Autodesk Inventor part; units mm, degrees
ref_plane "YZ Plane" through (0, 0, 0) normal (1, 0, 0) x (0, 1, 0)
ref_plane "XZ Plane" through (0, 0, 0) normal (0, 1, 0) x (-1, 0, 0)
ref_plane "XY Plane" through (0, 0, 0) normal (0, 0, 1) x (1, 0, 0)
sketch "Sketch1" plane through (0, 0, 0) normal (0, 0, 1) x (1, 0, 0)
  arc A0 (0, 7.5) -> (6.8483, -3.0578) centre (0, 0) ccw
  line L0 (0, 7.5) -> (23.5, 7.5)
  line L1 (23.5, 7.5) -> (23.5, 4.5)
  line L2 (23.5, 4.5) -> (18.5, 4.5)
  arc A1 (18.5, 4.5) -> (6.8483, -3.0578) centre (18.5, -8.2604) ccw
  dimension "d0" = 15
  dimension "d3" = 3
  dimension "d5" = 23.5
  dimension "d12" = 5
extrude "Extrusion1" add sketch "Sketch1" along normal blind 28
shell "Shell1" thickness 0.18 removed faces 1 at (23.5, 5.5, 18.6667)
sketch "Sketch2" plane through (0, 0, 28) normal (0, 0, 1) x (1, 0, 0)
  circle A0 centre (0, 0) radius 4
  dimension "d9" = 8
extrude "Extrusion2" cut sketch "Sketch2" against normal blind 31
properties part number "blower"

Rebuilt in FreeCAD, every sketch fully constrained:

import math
import FreeCAD as App
import Part
import Sketcher
Q = App.Units.Quantity


def faces_at(feature, points):
    """Names of the faces that lie closest to the given points."""
    faces = feature.Shape.Faces
    near = lambda p: min(range(len(faces)), key=lambda i: faces[i].distToShape(Part.Vertex(*p))[0])
    return sorted({f"Face{near(p) + 1}" for p in points})

doc = App.newDocument("Part")
body = doc.addObject("PartDesign::Body", "Body")

# Sketch on XY plane
sketch1 = body.newObject("Sketcher::SketchObject", "Sketch")
sketch1.AttachmentSupport = (doc.getObject("XY_Plane"), [""])
sketch1.MapMode = "FlatFace"
sketch1.addGeometry(Part.LineSegment(App.Vector(23.5, 7.5, 0), App.Vector(0, 7.5, 0)), False)
sketch1.addGeometry(Part.ArcOfCircle(Part.Circle(App.Vector(0, 0, 0), App.Vector(0, 0, 1), 7.5), math.radians(90), math.radians(336)), False)
sketch1.addGeometry(Part.ArcOfCircle(Part.Circle(App.Vector(18.5, -8.3, 0), App.Vector(0, 0, 1), 12.8), math.radians(90), math.radians(156)), False)
sketch1.addGeometry(Part.LineSegment(App.Vector(18.5, 4.5, 0), App.Vector(23.5, 4.5, 0)), False)
sketch1.addGeometry(Part.LineSegment(App.Vector(23.5, 4.5, 0), App.Vector(23.5, 7.5, 0)), False)
sketch1.addConstraint(Sketcher.Constraint("Tangent", 0, 2, 1, 1))
sketch1.addConstraint(Sketcher.Constraint("Tangent", 1, 2, 2, 2))
sketch1.addConstraint(Sketcher.Constraint("Tangent", 2, 1, 3, 1))
sketch1.addConstraint(Sketcher.Constraint("Coincident", 3, 2, 4, 1))
sketch1.addConstraint(Sketcher.Constraint("Coincident", 4, 2, 0, 1))
sketch1.addConstraint(Sketcher.Constraint("Horizontal", 0))
sketch1.addConstraint(Sketcher.Constraint("Horizontal", 3))
sketch1.addConstraint(Sketcher.Constraint("Vertical", 4))
sketch1.addConstraint(Sketcher.Constraint("Coincident", 1, 3, -1, 1))
sketch1.addConstraint(Sketcher.Constraint("Radius", 1, Q("7.5 mm")))
sketch1.addConstraint(Sketcher.Constraint("DistanceX", 3, 1, 3, 2, Q("5 mm")))
sketch1.addConstraint(Sketcher.Constraint("DistanceY", 4, 1, 4, 2, Q("3 mm")))
sketch1.addConstraint(Sketcher.Constraint("DistanceX", 0, 2, 0, 1, Q("23.5 mm")))
pad1 = body.newObject("PartDesign::Pad", "Pad")
pad1.Profile = sketch1
pad1.Length = 28
doc.recompute()

thickness = body.newObject("PartDesign::Thickness", "Thickness")
thickness.Base = (pad1, faces_at(pad1, [(23.5, 5.5, 18.667)]))
thickness.Value = 0.18
thickness.Reversed = True
thickness.Join = "Intersection"

# Sketch on XY plane
sketch2 = body.newObject("Sketcher::SketchObject", "Sketch001")
sketch2.AttachmentSupport = (doc.getObject("XY_Plane"), [""])
sketch2.MapMode = "FlatFace"
sketch2.AttachmentOffset = App.Placement(App.Vector(0, 0, 28), App.Rotation())
sketch2.addGeometry(Part.Circle(App.Vector(0, 0, 0), App.Vector(0, 0, 1), 4), False)
sketch2.addConstraint(Sketcher.Constraint("Coincident", 0, 3, -1, 1))
sketch2.addConstraint(Sketcher.Constraint("Diameter", 0, Q("8 mm")))
pocket1 = body.newObject("PartDesign::Pocket", "Pocket")
pocket1.Profile = sketch2
pocket1.Length = 31

doc.recompute()
